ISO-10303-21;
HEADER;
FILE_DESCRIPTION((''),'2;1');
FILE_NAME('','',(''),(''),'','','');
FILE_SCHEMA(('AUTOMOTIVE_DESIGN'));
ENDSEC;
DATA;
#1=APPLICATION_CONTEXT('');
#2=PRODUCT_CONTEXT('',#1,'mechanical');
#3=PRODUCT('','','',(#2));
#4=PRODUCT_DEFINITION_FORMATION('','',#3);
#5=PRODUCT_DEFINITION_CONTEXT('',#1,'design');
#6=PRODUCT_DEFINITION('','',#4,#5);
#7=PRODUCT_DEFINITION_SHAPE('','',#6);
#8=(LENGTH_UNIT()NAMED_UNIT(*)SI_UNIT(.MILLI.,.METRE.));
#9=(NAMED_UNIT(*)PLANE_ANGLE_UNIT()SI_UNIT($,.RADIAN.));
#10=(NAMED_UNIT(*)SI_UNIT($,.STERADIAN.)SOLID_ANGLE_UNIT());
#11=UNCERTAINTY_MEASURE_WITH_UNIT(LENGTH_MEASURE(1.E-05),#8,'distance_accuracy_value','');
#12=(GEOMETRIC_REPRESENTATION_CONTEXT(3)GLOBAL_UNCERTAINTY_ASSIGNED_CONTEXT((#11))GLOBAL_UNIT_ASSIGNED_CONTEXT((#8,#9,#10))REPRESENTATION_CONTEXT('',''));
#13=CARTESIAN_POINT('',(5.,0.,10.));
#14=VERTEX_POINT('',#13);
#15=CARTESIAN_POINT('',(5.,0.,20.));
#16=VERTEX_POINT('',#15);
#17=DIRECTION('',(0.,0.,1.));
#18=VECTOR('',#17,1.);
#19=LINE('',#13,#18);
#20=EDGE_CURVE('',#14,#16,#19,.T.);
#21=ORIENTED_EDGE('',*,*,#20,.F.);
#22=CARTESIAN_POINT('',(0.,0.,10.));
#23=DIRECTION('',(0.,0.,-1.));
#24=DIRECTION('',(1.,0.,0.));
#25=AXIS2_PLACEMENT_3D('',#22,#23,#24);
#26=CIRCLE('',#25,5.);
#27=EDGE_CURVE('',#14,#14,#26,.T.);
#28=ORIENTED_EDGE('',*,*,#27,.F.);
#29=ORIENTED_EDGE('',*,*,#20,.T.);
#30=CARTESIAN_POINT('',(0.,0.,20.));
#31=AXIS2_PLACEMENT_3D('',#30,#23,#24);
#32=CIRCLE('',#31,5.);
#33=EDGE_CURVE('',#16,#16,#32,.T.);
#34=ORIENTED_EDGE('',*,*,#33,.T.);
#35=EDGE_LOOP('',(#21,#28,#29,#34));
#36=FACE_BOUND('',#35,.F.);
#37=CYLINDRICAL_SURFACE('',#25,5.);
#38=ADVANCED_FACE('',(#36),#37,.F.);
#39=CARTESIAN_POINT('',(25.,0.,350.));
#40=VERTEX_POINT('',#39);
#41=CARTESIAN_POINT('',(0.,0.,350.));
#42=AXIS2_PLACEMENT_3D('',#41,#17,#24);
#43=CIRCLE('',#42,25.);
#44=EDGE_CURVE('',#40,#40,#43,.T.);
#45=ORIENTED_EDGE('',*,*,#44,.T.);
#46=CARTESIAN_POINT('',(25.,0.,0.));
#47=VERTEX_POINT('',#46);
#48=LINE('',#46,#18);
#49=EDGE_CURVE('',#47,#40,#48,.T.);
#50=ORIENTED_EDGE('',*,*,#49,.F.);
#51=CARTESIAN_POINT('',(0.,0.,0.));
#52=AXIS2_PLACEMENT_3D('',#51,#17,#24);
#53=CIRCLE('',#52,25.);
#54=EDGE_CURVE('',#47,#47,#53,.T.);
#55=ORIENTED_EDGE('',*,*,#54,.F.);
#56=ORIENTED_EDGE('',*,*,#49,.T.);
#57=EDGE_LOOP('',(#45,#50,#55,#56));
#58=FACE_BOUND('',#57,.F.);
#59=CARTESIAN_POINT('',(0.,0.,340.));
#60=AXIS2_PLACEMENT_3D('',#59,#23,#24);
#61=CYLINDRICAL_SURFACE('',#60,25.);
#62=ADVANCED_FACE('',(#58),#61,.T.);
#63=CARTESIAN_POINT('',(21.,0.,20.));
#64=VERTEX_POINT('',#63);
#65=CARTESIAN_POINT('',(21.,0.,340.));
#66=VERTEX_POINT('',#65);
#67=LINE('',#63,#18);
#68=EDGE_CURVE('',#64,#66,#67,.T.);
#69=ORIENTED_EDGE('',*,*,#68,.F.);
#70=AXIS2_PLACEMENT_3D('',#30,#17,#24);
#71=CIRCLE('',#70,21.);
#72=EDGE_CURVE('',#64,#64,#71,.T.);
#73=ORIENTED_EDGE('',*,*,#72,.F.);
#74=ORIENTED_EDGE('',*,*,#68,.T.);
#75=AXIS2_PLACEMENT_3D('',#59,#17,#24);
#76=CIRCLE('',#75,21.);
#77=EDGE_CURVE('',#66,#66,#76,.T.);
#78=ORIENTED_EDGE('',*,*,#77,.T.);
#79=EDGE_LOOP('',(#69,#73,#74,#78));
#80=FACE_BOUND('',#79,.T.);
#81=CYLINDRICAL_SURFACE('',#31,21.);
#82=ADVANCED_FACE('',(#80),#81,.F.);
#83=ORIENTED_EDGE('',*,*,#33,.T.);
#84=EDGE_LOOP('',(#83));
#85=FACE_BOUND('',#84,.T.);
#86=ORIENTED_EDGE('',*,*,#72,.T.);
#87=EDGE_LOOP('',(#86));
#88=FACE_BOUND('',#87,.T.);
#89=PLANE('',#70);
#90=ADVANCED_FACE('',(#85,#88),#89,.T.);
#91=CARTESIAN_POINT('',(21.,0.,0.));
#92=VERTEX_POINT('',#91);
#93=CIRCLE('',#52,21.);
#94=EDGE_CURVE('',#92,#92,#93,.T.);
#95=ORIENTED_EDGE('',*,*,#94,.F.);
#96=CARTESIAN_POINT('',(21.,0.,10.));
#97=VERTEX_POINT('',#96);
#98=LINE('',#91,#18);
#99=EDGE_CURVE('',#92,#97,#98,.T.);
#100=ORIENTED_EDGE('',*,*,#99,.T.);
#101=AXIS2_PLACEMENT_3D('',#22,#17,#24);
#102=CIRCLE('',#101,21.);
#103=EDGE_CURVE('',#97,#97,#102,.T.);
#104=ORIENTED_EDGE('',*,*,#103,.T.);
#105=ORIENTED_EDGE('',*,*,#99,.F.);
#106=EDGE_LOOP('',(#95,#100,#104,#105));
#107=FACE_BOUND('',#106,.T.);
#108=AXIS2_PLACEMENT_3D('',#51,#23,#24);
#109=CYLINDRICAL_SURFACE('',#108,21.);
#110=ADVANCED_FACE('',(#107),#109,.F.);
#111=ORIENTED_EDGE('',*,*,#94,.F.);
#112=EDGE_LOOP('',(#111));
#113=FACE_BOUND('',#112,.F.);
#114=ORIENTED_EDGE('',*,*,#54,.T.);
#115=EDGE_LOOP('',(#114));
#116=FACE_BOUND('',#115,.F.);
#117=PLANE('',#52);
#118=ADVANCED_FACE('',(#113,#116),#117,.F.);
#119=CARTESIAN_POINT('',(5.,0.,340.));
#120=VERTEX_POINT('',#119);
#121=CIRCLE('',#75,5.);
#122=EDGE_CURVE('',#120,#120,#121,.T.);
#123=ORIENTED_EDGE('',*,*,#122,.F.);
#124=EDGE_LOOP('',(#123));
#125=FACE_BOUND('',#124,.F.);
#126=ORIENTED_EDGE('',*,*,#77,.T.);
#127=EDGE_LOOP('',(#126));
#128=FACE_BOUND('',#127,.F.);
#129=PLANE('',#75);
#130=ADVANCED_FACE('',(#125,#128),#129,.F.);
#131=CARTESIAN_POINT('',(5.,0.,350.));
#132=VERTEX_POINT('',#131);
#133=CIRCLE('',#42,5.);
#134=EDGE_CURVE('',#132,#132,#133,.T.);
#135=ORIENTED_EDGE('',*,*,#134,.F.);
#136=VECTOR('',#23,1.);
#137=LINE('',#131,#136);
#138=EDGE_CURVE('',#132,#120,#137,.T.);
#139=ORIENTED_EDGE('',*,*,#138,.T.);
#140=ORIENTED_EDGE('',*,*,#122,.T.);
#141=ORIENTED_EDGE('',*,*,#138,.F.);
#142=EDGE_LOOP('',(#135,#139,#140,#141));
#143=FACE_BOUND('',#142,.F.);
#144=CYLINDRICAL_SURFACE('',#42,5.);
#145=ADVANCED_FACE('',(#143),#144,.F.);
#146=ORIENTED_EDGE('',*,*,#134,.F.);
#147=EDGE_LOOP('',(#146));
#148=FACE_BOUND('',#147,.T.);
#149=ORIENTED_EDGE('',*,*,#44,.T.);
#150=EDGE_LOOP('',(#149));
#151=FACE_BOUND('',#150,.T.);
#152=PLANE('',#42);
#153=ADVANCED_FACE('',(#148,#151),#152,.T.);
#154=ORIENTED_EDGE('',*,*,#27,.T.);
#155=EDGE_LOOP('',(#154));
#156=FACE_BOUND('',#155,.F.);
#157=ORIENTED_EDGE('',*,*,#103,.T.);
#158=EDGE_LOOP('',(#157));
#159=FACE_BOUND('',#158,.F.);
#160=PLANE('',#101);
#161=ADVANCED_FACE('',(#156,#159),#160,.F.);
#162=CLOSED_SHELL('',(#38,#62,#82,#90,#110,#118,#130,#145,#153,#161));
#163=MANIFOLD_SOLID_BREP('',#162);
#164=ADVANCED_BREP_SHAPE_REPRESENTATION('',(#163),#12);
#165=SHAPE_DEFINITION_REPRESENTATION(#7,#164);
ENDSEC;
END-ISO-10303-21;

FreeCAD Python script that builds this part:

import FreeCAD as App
import Part
import Sketcher

V = App.Vector

doc = App.newDocument("Part")
params = doc.addObject("Spreadsheet::Sheet", "Params")
for row, (alias, value) in enumerate([
    ("sketch1_diameter", "50 mm"),
    ("sketch1_diameter2", "42 mm"),
    ("pad1_length", "10 mm"),
    ("sketch2_diameter", "50 mm"),
    ("pad2_length", "10 mm"),
    ("sketch3_diameter", "50 mm"),
    ("sketch3_diameter2", "42 mm"),
    ("pad3_length", "320 mm"),
    ("sketch4_diameter", "50 mm"),
    ("pad4_length", "10 mm"),
    ("sketch5_diameter", "10 mm"),
    ("pocket1_length", "10 mm"),
    ("sketch6_diameter", "10 mm"),
    ("pocket2_length", "10 mm"),
], start=1):
    params.set(f"A{row}", alias)
    params.set(f"B{row}", "=" + value)
    params.setAlias(f"B{row}", alias)

body = doc.addObject("PartDesign::Body", "Body")

# Sketch on XY plane
sketch1 = body.newObject("Sketcher::SketchObject", "Sketch")
sketch1.AttachmentSupport = (doc.getObject("XY_Plane"), [""])
sketch1.MapMode = "FlatFace"
sketch1.addGeometry(Part.Circle(V(0, 0, 0), V(0, 0, 1), 25), False)
sketch1.addGeometry(Part.Circle(V(0, 0, 0), V(0, 0, 1), 21), False)
sketch1.addConstraint(Sketcher.Constraint("Coincident", 0, 3, -1, 1))
sketch1.addConstraint(Sketcher.Constraint("Coincident", 1, 3, -1, 1))
sketch1.addConstraint(Sketcher.Constraint("Diameter", 0, 50.0))
sketch1.addConstraint(Sketcher.Constraint("Diameter", 1, 42.0))
sketch1.setExpression("Constraints[2]", "Params.sketch1_diameter")
sketch1.setExpression("Constraints[3]", "Params.sketch1_diameter2")
pad1 = body.newObject("PartDesign::Pad", "Pad")
pad1.Profile = sketch1
pad1.setExpression("Length", "Params.pad1_length")

# Sketch on XY plane
sketch2 = body.newObject("Sketcher::SketchObject", "Sketch001")
sketch2.AttachmentSupport = (doc.getObject("XY_Plane"), [""])
sketch2.MapMode = "FlatFace"
sketch2.AttachmentOffset = App.Placement(V(0, 0, 10), App.Rotation())
sketch2.addGeometry(Part.Circle(V(0, 0, 0), V(0, 0, 1), 25), False)
sketch2.addConstraint(Sketcher.Constraint("Coincident", 0, 3, -1, 1))
sketch2.addConstraint(Sketcher.Constraint("Diameter", 0, 50.0))
sketch2.setExpression("Constraints[1]", "Params.sketch2_diameter")
pad2 = body.newObject("PartDesign::Pad", "Pad001")
pad2.Profile = sketch2
pad2.setExpression("Length", "Params.pad2_length")

# Sketch on XY plane
sketch3 = body.newObject("Sketcher::SketchObject", "Sketch002")
sketch3.AttachmentSupport = (doc.getObject("XY_Plane"), [""])
sketch3.MapMode = "FlatFace"
sketch3.AttachmentOffset = App.Placement(V(0, 0, 20), App.Rotation())
sketch3.addGeometry(Part.Circle(V(0, 0, 0), V(0, 0, 1), 25), False)
sketch3.addGeometry(Part.Circle(V(0, 0, 0), V(0, 0, 1), 21), False)
sketch3.addConstraint(Sketcher.Constraint("Coincident", 0, 3, -1, 1))
sketch3.addConstraint(Sketcher.Constraint("Coincident", 1, 3, -1, 1))
sketch3.addConstraint(Sketcher.Constraint("Diameter", 0, 50.0))
sketch3.addConstraint(Sketcher.Constraint("Diameter", 1, 42.0))
sketch3.setExpression("Constraints[2]", "Params.sketch3_diameter")
sketch3.setExpression("Constraints[3]", "Params.sketch3_diameter2")
pad3 = body.newObject("PartDesign::Pad", "Pad002")
pad3.Profile = sketch3
pad3.setExpression("Length", "Params.pad3_length")

# Sketch on XY plane
sketch4 = body.newObject("Sketcher::SketchObject", "Sketch003")
sketch4.AttachmentSupport = (doc.getObject("XY_Plane"), [""])
sketch4.MapMode = "FlatFace"
sketch4.AttachmentOffset = App.Placement(V(0, 0, 340), App.Rotation())
sketch4.addGeometry(Part.Circle(V(0, 0, 0), V(0, 0, 1), 25), False)
sketch4.addConstraint(Sketcher.Constraint("Coincident", 0, 3, -1, 1))
sketch4.addConstraint(Sketcher.Constraint("Diameter", 0, 50.0))
sketch4.setExpression("Constraints[1]", "Params.sketch4_diameter")
pad4 = body.newObject("PartDesign::Pad", "Pad003")
pad4.Profile = sketch4
pad4.setExpression("Length", "Params.pad4_length")

# Sketch on XY plane
sketch5 = body.newObject("Sketcher::SketchObject", "Sketch004")
sketch5.AttachmentSupport = (doc.getObject("XY_Plane"), [""])
sketch5.MapMode = "FlatFace"
sketch5.AttachmentOffset = App.Placement(V(0, 0, 10), App.Rotation())
sketch5.addGeometry(Part.Circle(V(0, 0, 0), V(0, 0, 1), 5), False)
sketch5.addConstraint(Sketcher.Constraint("Coincident", 0, 3, -1, 1))
sketch5.addConstraint(Sketcher.Constraint("Diameter", 0, 10.0))
sketch5.setExpression("Constraints[1]", "Params.sketch5_diameter")
pocket1 = body.newObject("PartDesign::Pocket", "Pocket")
pocket1.Profile = sketch5
pocket1.setExpression("Length", "Params.pocket1_length")
pocket1.Reversed = True

# Sketch on XY plane
sketch6 = body.newObject("Sketcher::SketchObject", "Sketch005")
sketch6.AttachmentSupport = (doc.getObject("XY_Plane"), [""])
sketch6.MapMode = "FlatFace"
sketch6.AttachmentOffset = App.Placement(V(0, 0, 350), App.Rotation())
sketch6.addGeometry(Part.Circle(V(0, 0, 0), V(0, 0, 1), 5), False)
sketch6.addConstraint(Sketcher.Constraint("Coincident", 0, 3, -1, 1))
sketch6.addConstraint(Sketcher.Constraint("Diameter", 0, 10.0))
sketch6.setExpression("Constraints[1]", "Params.sketch6_diameter")
pocket2 = body.newObject("PartDesign::Pocket", "Pocket001")
pocket2.Profile = sketch6
pocket2.setExpression("Length", "Params.pocket2_length")

doc.recompute()
